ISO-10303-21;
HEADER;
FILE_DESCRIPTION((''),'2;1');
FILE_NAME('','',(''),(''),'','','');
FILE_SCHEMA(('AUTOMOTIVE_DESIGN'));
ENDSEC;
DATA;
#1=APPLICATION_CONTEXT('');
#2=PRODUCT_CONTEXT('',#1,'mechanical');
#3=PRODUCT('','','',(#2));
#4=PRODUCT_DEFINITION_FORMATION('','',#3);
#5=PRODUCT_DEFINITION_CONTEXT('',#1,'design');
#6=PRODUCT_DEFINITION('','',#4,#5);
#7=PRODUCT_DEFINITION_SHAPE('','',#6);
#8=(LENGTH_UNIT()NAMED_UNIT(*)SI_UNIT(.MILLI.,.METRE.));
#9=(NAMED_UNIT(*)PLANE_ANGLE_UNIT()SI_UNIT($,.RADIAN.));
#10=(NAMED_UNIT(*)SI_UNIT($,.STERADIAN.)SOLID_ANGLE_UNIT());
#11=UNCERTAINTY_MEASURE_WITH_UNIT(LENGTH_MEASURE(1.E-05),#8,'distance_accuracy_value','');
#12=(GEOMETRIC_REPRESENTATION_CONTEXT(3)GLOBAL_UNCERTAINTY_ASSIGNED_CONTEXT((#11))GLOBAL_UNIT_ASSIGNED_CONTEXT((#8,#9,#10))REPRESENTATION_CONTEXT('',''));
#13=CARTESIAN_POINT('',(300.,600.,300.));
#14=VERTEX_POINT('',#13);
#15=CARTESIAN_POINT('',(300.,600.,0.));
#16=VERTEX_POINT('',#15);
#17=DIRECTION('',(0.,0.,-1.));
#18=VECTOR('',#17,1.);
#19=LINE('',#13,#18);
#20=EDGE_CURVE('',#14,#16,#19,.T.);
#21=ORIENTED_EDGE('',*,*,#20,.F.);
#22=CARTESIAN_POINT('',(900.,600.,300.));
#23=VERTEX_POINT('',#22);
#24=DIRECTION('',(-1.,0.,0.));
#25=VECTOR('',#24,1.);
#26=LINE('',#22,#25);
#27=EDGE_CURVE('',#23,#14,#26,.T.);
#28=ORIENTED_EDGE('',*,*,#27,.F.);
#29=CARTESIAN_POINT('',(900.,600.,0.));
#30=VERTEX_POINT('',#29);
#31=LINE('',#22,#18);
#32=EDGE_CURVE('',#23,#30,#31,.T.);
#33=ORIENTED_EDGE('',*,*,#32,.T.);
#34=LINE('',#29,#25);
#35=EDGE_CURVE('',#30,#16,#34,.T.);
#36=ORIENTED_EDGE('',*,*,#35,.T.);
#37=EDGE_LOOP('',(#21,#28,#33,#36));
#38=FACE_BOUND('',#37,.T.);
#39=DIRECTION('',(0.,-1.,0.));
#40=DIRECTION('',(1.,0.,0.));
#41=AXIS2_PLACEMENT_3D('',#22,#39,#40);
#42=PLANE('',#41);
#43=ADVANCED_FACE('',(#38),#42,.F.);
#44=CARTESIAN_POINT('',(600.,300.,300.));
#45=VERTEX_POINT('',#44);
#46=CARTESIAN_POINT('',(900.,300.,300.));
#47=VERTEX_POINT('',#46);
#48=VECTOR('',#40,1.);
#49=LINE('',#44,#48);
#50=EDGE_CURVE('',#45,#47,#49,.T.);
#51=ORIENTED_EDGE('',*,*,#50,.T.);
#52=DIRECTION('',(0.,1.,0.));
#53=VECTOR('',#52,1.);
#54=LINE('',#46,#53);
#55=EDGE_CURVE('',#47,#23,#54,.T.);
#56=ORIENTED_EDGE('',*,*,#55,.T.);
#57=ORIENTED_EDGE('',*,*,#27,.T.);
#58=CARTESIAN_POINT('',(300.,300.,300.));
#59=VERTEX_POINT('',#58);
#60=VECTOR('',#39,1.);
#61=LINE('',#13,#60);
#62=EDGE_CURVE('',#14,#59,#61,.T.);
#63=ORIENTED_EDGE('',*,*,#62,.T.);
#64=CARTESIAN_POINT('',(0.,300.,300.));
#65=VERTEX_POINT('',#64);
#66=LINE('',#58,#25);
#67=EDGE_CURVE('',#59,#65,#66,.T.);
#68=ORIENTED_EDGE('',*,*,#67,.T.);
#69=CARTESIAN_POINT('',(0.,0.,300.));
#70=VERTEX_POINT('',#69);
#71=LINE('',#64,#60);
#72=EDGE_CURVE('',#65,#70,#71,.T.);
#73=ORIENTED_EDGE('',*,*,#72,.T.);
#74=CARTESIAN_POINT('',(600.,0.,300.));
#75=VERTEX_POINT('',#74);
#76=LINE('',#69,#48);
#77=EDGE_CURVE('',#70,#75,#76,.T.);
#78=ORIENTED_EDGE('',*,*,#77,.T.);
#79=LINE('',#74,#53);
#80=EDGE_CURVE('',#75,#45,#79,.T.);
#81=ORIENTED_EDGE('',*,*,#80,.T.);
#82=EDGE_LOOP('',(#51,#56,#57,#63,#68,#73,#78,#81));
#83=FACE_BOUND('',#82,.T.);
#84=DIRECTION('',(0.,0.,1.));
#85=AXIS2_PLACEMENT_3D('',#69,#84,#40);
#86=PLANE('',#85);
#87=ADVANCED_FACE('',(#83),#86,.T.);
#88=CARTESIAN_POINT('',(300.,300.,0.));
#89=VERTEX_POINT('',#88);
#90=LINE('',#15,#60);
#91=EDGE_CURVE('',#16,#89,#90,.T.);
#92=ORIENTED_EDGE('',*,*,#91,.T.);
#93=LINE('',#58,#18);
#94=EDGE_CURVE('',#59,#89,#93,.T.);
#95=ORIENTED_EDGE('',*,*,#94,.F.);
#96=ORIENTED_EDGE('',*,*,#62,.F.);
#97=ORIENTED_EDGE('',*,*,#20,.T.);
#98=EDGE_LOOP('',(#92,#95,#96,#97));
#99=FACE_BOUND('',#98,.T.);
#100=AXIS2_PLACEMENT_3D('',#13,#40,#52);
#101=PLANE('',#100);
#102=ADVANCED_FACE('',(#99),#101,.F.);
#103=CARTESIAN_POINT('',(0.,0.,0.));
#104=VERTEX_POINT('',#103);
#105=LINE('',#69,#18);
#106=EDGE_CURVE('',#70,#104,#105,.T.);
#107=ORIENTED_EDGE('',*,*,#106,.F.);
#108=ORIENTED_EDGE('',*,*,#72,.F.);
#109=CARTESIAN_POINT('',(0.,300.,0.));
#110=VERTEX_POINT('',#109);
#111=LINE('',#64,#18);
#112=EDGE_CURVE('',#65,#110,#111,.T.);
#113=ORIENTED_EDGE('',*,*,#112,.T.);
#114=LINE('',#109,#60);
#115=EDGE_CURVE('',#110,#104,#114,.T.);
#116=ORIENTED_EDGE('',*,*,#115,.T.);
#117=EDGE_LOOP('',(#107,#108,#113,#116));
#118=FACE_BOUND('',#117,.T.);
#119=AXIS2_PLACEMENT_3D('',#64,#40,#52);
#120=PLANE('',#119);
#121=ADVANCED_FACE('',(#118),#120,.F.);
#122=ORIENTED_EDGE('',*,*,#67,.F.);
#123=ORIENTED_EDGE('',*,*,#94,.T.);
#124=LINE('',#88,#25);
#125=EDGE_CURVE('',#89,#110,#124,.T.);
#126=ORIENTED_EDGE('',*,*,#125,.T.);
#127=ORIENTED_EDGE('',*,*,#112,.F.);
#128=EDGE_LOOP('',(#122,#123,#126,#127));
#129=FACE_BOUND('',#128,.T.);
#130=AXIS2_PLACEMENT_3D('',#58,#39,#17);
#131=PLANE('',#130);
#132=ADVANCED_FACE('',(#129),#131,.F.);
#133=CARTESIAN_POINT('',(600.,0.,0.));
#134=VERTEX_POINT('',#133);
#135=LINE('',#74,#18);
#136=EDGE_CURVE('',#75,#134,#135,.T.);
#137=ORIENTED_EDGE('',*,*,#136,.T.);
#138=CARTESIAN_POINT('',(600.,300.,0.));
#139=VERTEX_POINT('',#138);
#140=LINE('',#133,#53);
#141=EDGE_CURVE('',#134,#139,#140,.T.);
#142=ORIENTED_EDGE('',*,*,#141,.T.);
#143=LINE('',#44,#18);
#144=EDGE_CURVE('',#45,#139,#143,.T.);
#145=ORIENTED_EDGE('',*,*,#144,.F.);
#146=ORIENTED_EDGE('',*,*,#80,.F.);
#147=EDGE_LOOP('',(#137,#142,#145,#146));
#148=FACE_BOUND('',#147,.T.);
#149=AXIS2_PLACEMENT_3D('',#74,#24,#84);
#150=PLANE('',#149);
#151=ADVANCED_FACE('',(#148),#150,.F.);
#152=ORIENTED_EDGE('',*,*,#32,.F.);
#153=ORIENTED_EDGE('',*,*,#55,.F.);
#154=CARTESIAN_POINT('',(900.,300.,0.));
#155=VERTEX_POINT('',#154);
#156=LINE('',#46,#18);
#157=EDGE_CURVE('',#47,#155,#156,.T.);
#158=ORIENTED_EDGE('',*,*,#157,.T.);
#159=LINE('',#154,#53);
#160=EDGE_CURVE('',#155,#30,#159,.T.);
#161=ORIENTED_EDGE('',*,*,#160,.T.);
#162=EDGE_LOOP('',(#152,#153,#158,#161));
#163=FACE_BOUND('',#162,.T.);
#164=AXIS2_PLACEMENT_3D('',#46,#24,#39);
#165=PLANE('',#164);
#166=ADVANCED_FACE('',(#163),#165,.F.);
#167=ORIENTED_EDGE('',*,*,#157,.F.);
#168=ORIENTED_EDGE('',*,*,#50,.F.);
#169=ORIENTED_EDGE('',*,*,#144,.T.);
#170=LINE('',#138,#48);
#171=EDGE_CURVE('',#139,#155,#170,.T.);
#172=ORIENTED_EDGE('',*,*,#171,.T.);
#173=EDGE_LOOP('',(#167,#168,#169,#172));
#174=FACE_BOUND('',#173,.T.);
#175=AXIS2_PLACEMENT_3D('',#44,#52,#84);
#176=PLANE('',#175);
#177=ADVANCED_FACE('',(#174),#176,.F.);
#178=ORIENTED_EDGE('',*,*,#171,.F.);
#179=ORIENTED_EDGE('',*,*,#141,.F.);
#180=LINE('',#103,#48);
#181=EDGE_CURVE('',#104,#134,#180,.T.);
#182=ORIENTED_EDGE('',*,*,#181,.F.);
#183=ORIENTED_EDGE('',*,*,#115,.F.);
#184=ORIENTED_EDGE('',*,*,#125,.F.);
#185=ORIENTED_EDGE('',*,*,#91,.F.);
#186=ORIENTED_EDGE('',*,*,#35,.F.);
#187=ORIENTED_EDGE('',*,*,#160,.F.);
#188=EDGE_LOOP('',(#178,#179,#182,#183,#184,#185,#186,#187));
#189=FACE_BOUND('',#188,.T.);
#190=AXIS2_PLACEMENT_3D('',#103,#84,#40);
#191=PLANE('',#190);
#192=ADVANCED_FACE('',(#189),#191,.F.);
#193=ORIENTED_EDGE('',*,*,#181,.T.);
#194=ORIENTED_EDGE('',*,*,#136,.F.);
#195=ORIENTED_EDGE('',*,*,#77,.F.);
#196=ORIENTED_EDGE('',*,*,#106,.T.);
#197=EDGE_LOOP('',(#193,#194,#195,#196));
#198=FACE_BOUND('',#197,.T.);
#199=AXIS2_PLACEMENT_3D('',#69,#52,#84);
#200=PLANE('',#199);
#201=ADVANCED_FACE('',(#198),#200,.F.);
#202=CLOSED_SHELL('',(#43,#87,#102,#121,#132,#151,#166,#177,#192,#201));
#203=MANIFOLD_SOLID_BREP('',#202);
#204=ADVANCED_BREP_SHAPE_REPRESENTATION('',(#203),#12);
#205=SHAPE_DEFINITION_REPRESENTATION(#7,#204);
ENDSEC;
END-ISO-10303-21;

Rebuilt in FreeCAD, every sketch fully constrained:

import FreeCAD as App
import Part
import Sketcher
from FreeCAD import Vector
Q = App.Units.Quantity


def add_polygon(sketch, points):
    """Adds a closed chain of lines whose ends are joined by coincident constraints."""
    first, n = sketch.GeometryCount, len(points)
    for a, b in zip(points, points[1:] + points[:1]):
        sketch.addGeometry(Part.LineSegment(App.Vector(*a, 0), App.Vector(*b, 0)), False)
    for i in range(n):
        sketch.addConstraint(Sketcher.Constraint("Coincident", first + i, 2, first + (i + 1) % n, 1))

doc = App.newDocument("Part")
body = doc.addObject("PartDesign::Body", "Body")

# Sketch on XY plane
sketch1 = body.newObject("Sketcher::SketchObject", "Sketch")
sketch1.AttachmentSupport = (doc.getObject("XY_Plane"), [""])
sketch1.MapMode = "FlatFace"
add_polygon(sketch1, [(0, 0), (600, 0), (600, 300), (900, 300), (900, 600), (300, 600), (300, 300), (0, 300)])  # lines 0-7
sketch1.addConstraint([
    Sketcher.Constraint("Horizontal", 0),
    Sketcher.Constraint("Vertical", 1),
    Sketcher.Constraint("Horizontal", 2),
    Sketcher.Constraint("Vertical", 3),
    Sketcher.Constraint("Horizontal", 4),
    Sketcher.Constraint("Vertical", 5),
    Sketcher.Constraint("Horizontal", 6),
    Sketcher.Constraint("Vertical", 7),
    Sketcher.Constraint("Coincident", 7, 2, -1, 1),
    Sketcher.Constraint("Horizontal", 2, 2, 5, 2),
    Sketcher.Constraint("Equal", 0, 4),
    Sketcher.Constraint("Equal", 6, 1),
    Sketcher.Constraint("Equal", 1, 3),
    Sketcher.Constraint("DistanceX", 0, 1, 0, 2, Q("600 mm")),
    Sketcher.Constraint("DistanceX", 2, 1, 2, 2, Q("300 mm")),
])
pad1 = body.newObject("PartDesign::Pad", "Pad")
pad1.Profile = sketch1
pad1.Length = 300

doc.recompute()
